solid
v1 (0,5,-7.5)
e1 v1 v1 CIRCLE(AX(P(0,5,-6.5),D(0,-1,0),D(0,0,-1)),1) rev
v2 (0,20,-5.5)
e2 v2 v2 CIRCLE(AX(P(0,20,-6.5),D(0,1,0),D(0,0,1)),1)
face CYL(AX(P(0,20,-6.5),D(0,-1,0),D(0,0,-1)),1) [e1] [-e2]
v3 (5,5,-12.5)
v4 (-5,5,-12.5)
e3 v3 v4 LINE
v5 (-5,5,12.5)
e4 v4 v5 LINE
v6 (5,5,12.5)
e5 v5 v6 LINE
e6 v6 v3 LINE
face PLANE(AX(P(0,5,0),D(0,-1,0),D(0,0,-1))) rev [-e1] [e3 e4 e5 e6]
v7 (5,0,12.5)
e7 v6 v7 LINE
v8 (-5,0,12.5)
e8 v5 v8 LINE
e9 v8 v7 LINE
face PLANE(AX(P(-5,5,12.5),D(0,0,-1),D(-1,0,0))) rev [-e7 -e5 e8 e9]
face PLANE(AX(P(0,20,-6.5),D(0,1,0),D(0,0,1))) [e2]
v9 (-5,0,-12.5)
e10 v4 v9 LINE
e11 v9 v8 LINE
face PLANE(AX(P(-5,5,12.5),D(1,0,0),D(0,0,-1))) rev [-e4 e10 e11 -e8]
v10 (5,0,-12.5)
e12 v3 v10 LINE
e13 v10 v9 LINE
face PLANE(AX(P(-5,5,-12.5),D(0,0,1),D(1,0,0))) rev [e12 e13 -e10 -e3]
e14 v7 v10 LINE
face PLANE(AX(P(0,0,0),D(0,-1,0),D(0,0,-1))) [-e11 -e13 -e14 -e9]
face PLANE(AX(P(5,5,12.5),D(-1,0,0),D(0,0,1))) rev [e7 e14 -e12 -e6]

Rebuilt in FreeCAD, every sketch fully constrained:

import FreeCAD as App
import Part
import Sketcher

V = App.Vector

doc = App.newDocument("Part")
body = doc.addObject("PartDesign::Body", "Body")

# Sketch on XZ plane
sketch1 = doc.addObject("Sketcher::SketchObject", "Sketch")
body.addObject(sketch1)
sketch1.AttachmentSupport = (doc.XZ_Plane, [""])
sketch1.MapMode = "FlatFace"
sketch1.addGeometry([
    Part.LineSegment(V(-5, -12.5, 0), V(-5, 12.5, 0)),
    Part.LineSegment(V(-5, 12.5, 0), V(5, 12.5, 0)),
    Part.LineSegment(V(5, 12.5, 0), V(5, -12.5, 0)),
    Part.LineSegment(V(5, -12.5, 0), V(-5, -12.5, 0)),
], False)
sketch1.addConstraint([
    Sketcher.Constraint("Coincident", 0, 2, 1, 1),
    Sketcher.Constraint("Coincident", 1, 2, 2, 1),
    Sketcher.Constraint("Coincident", 2, 2, 3, 1),
    Sketcher.Constraint("Coincident", 3, 2, 0, 1),
    Sketcher.Constraint("Vertical", 0),
    Sketcher.Constraint("Horizontal", 1),
    Sketcher.Constraint("Vertical", 2),
    Sketcher.Constraint("Horizontal", 3),
    Sketcher.Constraint("Symmetric", 0, 2, 2, 2, -1, 1),
    Sketcher.Constraint("DistanceX", 1, 1, 1, 2, 10.0),
    Sketcher.Constraint("DistanceY", 0, 1, 0, 2, 25.0),
])
pad1 = doc.addObject("PartDesign::Pad", "Pad")
body.addObject(pad1)
pad1.Profile = sketch1
pad1.Length = 5
pad1.Reversed = True

# Sketch on XZ plane
sketch2 = doc.addObject("Sketcher::SketchObject", "Sketch001")
body.addObject(sketch2)
sketch2.AttachmentSupport = (doc.XZ_Plane, [""])
sketch2.MapMode = "FlatFace"
sketch2.AttachmentOffset = App.Placement(V(0, 0, -5), App.Rotation())
sketch2.addGeometry(Part.Circle(V(0, -6.5, 0), V(0, 0, 1), 1), False)
sketch2.addConstraint([
    Sketcher.Constraint("PointOnObject", 0, 3, -2),
    Sketcher.Constraint("Diameter", 0, 2.0),
    Sketcher.Constraint("DistanceY", 0, 3, -1, 1, 6.5),
])
pad2 = doc.addObject("PartDesign::Pad", "Pad001")
body.addObject(pad2)
pad2.Profile = sketch2
pad2.Length = 15
pad2.Reversed = True

doc.recompute()
